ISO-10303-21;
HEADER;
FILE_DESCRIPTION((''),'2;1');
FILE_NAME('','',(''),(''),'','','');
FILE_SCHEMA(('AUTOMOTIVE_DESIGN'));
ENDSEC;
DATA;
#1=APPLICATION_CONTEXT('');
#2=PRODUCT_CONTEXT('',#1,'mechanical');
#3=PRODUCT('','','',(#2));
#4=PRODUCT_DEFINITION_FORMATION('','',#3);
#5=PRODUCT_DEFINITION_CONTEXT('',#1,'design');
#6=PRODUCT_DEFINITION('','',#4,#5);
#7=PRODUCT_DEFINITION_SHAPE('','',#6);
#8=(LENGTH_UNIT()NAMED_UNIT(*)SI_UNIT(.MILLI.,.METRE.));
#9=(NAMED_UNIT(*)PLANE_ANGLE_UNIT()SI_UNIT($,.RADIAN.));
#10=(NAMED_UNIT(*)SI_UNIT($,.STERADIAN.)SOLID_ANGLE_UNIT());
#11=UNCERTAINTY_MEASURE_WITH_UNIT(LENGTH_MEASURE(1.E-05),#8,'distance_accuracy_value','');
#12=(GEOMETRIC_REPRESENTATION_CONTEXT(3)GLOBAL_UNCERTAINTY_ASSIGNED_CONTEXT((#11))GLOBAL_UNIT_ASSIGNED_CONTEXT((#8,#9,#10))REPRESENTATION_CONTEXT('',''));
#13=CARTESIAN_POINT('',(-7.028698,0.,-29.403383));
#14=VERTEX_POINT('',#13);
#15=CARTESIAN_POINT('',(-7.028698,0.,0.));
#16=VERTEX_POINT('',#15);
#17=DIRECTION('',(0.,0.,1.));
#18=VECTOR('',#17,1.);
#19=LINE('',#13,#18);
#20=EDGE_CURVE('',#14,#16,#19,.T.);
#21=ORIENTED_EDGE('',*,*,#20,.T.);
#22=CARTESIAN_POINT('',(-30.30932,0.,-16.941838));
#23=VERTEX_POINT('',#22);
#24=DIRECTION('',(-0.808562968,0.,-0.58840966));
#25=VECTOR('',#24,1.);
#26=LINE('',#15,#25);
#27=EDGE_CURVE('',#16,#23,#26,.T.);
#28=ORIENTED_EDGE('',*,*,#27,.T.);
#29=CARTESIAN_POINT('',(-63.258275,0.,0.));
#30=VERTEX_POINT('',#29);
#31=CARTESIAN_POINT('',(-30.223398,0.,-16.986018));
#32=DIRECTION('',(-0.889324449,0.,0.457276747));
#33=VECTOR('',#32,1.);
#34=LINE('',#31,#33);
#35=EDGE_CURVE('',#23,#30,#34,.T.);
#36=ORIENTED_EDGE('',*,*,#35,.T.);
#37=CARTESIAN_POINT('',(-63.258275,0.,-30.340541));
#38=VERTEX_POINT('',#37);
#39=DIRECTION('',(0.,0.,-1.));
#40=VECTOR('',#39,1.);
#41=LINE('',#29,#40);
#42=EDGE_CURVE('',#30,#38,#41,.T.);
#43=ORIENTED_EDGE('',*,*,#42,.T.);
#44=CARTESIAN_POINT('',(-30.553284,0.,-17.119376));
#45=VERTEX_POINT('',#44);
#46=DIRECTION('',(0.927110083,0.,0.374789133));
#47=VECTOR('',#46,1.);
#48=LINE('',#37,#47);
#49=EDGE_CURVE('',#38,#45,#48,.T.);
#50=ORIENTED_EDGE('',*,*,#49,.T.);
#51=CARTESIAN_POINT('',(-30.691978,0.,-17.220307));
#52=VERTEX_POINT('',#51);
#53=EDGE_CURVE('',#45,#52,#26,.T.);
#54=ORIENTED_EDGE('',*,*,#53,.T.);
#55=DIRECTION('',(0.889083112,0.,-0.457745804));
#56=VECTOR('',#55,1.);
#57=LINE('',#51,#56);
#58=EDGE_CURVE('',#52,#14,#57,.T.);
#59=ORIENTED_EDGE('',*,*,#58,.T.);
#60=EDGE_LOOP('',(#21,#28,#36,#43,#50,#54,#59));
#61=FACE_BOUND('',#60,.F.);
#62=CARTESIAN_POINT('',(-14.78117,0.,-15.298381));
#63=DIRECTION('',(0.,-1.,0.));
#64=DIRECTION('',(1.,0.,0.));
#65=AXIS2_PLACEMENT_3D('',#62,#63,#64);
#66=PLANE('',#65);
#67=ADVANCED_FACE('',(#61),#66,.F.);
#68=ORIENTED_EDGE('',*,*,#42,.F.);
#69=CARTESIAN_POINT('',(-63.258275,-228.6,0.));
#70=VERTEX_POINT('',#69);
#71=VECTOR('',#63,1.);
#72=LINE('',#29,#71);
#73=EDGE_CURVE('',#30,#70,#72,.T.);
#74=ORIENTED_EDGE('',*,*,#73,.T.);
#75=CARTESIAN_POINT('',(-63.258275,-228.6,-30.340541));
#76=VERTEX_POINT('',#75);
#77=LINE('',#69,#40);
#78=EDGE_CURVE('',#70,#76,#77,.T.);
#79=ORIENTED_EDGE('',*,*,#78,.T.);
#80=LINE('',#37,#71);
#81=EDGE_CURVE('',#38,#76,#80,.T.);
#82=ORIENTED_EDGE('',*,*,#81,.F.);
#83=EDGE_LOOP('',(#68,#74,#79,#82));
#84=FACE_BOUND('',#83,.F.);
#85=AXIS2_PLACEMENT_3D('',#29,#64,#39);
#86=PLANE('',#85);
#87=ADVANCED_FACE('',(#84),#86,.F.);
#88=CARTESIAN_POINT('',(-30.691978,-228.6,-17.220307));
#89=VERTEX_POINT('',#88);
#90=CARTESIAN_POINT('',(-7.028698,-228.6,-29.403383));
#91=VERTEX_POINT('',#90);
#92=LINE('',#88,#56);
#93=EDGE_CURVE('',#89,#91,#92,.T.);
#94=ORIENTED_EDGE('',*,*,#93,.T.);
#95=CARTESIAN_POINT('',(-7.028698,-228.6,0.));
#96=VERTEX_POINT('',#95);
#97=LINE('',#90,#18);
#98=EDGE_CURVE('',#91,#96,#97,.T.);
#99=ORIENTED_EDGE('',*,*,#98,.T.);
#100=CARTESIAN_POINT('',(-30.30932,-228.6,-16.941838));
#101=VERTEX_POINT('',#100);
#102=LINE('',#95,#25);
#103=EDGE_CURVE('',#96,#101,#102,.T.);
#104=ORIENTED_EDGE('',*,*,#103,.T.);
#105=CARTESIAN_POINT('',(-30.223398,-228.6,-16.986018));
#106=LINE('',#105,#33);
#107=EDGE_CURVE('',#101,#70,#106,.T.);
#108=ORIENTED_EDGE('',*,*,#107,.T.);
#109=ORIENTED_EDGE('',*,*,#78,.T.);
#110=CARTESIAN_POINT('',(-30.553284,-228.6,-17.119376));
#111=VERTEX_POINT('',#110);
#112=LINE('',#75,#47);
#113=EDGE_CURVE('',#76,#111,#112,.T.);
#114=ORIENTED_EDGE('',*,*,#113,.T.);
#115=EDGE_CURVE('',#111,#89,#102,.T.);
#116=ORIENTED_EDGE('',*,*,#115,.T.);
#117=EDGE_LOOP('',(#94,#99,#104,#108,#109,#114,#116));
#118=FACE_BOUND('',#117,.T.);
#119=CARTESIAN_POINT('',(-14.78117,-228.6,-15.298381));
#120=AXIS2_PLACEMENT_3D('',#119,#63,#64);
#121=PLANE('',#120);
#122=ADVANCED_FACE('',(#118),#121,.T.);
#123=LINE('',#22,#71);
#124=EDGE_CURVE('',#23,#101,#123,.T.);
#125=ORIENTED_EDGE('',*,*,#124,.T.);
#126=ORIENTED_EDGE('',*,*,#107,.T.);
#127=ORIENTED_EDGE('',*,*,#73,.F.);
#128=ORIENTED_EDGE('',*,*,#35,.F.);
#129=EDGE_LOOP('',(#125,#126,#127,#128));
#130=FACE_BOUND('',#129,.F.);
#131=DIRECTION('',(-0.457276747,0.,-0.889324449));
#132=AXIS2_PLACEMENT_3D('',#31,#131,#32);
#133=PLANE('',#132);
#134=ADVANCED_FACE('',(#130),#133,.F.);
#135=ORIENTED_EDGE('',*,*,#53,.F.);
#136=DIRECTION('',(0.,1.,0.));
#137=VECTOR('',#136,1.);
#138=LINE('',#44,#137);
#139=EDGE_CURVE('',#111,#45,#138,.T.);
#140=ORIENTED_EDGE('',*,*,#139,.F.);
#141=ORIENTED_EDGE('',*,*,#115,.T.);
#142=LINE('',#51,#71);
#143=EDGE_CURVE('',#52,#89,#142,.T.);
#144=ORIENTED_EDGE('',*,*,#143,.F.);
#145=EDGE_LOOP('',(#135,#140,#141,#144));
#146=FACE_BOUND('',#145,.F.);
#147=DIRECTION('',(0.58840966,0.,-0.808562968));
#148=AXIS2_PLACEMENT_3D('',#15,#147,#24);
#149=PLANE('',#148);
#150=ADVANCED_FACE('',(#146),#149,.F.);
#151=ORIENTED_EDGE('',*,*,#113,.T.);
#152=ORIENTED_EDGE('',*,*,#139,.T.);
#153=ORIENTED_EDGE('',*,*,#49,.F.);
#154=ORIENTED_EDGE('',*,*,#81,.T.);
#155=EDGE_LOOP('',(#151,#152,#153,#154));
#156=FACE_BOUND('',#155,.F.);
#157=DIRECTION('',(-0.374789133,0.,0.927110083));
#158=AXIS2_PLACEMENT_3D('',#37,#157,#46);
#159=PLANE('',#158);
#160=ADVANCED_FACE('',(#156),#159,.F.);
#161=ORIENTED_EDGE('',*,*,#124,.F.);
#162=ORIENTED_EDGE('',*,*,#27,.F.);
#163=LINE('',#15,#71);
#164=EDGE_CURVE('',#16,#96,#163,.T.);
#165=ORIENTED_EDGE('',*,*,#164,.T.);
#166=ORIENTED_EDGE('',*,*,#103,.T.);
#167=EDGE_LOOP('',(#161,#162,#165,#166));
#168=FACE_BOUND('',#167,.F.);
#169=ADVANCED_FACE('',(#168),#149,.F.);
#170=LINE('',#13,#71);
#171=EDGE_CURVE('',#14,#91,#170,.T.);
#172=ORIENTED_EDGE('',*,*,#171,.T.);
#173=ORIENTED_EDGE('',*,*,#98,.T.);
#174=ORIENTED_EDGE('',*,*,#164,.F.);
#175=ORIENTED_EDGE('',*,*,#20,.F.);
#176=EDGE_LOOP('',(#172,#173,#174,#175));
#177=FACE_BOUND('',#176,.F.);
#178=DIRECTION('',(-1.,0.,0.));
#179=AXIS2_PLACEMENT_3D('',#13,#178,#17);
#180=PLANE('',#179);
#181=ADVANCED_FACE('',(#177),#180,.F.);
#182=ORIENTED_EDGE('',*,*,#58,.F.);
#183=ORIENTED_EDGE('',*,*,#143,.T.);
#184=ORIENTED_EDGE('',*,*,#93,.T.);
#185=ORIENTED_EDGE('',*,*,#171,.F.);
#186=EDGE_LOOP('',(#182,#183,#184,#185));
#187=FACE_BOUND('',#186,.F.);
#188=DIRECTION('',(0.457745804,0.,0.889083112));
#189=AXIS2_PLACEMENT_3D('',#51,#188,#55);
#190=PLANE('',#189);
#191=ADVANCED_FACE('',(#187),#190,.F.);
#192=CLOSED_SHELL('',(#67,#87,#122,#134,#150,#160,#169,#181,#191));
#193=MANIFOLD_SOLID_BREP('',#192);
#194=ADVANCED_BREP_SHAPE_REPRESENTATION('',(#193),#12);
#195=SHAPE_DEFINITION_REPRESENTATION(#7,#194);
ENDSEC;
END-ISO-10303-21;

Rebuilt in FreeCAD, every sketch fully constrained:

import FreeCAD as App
import Part
import Sketcher
Q = App.Units.Quantity

doc = App.newDocument("Part")
body = doc.addObject("PartDesign::Body", "Body")

# Sketch on XZ plane
sketch1 = doc.addObject("Sketcher::SketchObject", "Sketch")
body.addObject(sketch1)
sketch1.AttachmentSupport = (doc.XZ_Plane, [""])
sketch1.MapMode = "FlatFace"
sketch1.addGeometry(Part.LineSegment(App.Vector(-63.258275, -30.340541, 0), App.Vector(-30.223398, -16.986018, 0)), False)
sketch1.addGeometry(Part.LineSegment(App.Vector(-30.223398, -16.986018, 0), App.Vector(-63.258275, 0, 0)), False)
sketch1.addGeometry(Part.LineSegment(App.Vector(-63.258275, 0, 0), App.Vector(-63.258275, -30.340541, 0)), False)
sketch1.addConstraint(Sketcher.Constraint("Coincident", 0, 2, 1, 1))
sketch1.addConstraint(Sketcher.Constraint("Coincident", 1, 2, 2, 1))
sketch1.addConstraint(Sketcher.Constraint("Coincident", 2, 2, 0, 1))
sketch1.addConstraint(Sketcher.Constraint("Vertical", 2))
sketch1.addConstraint(Sketcher.Constraint("PointOnObject", 1, 2, -1))
sketch1.addConstraint(Sketcher.Constraint("DistanceY", 2, 2, 2, 1, Q("30.340541 mm")))
sketch1.addConstraint(Sketcher.Constraint("DistanceY", 0, 2, -1, 1, Q("16.986018 mm")))
sketch1.addConstraint(Sketcher.Constraint("Distance", 0, Q("35.632098 mm")))
sketch1.addConstraint(Sketcher.Constraint("DistanceX", 0, 2, -1, 1, Q("30.223398 mm")))
pad1 = doc.addObject("PartDesign::Pad", "Pad")
body.addObject(pad1)
pad1.Profile = sketch1
pad1.Length = Q("9 in")

# Sketch on XZ plane
sketch2 = doc.addObject("Sketcher::SketchObject", "Sketch001")
body.addObject(sketch2)
sketch2.AttachmentSupport = (doc.XZ_Plane, [""])
sketch2.MapMode = "FlatFace"
sketch2.addGeometry(Part.LineSegment(App.Vector(-7.028698, 0, 0), App.Vector(-30.691978, -17.220307, 0)), False)
sketch2.addGeometry(Part.LineSegment(App.Vector(-30.691978, -17.220307, 0), App.Vector(-7.028698, -29.403383, 0)), False)
sketch2.addGeometry(Part.LineSegment(App.Vector(-7.028698, -29.403383, 0), App.Vector(-7.028698, 0, 0)), False)
sketch2.addConstraint(Sketcher.Constraint("Coincident", 0, 2, 1, 1))
sketch2.addConstraint(Sketcher.Constraint("Coincident", 1, 2, 2, 1))
sketch2.addConstraint(Sketcher.Constraint("Coincident", 2, 2, 0, 1))
sketch2.addConstraint(Sketcher.Constraint("Vertical", 2))
sketch2.addConstraint(Sketcher.Constraint("PointOnObject", 2, 2, -1))
sketch2.addConstraint(Sketcher.Constraint("DistanceX", 1, 2, -1, 1, Q("7.028698 mm")))
sketch2.addConstraint(Sketcher.Constraint("DistanceY", 2, 1, 2, 2, Q("29.403383 mm")))
sketch2.addConstraint(Sketcher.Constraint("DistanceX", 0, 2, 1, 2, Q("23.66328 mm")))
sketch2.addConstraint(Sketcher.Constraint("Distance", 0, Q("29.265847 mm")))
pad2 = doc.addObject("PartDesign::Pad", "Pad001")
body.addObject(pad2)
pad2.Profile = sketch2
pad2.Length = Q("9 in")

doc.recompute()
